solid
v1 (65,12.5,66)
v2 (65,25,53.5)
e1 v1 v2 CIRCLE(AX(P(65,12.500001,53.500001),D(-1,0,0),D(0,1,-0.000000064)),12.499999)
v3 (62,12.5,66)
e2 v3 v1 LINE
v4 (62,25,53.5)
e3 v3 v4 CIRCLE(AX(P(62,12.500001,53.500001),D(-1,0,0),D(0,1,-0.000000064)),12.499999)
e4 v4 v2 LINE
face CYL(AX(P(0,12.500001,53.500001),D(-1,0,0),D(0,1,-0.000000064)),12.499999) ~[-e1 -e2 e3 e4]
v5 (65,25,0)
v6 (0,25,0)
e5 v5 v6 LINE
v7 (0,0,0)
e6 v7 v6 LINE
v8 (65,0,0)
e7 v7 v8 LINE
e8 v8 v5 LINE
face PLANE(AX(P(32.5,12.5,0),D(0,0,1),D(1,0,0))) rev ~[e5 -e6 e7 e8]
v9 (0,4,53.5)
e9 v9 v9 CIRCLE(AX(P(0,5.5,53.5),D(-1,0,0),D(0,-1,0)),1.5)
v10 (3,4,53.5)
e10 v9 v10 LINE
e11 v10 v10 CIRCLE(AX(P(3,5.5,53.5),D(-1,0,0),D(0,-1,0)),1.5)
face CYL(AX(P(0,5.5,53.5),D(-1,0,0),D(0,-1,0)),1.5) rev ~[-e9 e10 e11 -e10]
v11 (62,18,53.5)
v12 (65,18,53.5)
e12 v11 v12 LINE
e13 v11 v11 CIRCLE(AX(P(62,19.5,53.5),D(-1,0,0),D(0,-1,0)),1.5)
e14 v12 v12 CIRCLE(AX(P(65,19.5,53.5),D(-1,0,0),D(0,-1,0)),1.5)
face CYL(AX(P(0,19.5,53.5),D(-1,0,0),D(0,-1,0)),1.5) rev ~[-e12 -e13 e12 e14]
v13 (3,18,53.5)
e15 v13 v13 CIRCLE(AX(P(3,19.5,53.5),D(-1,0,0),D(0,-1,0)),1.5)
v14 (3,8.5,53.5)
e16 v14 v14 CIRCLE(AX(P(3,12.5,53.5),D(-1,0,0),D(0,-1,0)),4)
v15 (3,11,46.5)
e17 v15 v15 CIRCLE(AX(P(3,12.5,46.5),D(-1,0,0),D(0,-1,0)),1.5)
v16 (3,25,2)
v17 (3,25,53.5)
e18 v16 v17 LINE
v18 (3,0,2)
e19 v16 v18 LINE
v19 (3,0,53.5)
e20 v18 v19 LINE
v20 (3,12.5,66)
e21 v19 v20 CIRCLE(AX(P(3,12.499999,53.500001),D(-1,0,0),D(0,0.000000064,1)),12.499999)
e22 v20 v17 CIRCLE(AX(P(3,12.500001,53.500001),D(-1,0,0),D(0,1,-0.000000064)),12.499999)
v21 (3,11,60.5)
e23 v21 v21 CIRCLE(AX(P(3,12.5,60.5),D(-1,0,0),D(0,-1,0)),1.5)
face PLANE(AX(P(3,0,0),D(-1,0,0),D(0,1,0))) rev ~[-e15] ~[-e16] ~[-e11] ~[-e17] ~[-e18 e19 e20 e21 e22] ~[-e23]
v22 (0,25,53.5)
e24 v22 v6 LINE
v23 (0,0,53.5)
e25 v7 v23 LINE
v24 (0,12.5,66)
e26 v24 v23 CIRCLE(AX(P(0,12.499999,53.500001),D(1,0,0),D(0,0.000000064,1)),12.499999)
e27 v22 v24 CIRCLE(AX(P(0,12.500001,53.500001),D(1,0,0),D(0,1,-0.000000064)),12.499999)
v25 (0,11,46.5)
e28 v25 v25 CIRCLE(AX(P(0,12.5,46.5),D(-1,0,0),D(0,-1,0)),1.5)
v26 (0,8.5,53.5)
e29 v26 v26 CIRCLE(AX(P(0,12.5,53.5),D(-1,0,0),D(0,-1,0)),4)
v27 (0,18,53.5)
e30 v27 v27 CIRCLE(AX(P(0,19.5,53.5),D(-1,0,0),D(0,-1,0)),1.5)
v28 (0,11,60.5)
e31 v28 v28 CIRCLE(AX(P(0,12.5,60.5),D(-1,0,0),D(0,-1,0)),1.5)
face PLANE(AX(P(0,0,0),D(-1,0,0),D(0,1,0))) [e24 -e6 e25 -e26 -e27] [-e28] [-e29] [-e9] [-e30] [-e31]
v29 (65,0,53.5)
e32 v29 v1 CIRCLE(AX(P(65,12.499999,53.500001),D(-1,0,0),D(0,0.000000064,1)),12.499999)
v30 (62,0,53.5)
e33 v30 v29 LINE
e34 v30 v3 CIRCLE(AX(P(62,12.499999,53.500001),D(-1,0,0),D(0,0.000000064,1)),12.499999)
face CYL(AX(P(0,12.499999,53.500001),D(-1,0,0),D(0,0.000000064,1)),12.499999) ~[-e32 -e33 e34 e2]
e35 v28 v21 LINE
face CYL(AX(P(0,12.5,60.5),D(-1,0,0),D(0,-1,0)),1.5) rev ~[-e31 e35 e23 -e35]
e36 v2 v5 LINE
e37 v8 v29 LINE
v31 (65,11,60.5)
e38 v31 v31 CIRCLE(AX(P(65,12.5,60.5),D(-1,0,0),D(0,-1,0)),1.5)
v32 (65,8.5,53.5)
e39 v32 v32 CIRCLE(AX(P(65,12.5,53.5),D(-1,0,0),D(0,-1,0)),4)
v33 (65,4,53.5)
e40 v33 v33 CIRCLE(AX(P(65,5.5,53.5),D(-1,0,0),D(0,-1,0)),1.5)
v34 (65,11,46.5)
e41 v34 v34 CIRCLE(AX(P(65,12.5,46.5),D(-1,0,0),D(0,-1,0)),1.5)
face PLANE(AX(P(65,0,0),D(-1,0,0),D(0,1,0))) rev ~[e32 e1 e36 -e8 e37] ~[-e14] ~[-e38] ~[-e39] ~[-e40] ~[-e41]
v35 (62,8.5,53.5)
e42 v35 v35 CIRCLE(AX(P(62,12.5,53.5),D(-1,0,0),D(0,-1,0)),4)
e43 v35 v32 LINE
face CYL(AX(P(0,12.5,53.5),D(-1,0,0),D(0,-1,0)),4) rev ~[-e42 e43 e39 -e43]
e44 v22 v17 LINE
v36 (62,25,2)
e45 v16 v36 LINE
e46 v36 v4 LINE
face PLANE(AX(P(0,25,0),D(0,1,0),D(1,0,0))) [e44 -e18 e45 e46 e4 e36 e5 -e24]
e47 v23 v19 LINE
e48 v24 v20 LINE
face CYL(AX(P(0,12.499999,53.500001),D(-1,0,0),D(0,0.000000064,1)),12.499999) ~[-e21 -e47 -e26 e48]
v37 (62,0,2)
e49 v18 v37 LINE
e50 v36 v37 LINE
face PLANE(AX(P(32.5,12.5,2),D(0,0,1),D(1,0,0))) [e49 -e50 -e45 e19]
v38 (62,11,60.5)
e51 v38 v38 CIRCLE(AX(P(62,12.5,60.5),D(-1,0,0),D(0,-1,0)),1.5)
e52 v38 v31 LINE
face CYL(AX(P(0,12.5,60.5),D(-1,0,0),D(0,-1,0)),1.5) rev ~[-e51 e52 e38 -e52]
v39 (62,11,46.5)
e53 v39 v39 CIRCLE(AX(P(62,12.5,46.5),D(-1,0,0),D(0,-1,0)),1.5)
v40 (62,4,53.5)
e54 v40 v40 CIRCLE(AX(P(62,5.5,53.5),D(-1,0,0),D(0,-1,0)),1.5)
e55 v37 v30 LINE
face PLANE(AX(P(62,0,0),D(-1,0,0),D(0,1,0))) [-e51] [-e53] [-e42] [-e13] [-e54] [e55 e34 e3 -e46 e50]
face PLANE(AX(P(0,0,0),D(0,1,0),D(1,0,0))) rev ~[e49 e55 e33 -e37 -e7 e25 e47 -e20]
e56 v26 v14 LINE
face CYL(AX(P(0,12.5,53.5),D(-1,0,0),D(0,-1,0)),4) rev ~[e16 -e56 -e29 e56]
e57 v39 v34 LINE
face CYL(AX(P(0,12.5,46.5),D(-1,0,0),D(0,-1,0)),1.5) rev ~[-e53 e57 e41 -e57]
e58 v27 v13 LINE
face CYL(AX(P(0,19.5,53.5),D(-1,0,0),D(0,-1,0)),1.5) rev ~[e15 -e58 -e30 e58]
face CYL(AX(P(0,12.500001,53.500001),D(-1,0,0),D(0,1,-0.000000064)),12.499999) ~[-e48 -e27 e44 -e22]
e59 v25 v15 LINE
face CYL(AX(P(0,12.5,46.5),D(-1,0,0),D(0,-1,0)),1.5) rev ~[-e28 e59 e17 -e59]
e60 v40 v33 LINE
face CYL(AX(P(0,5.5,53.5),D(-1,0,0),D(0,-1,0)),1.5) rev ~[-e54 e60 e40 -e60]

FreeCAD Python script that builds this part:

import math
import FreeCAD as App
import Part
import Sketcher
from FreeCAD import Vector
Q = App.Units.Quantity


def add_polygon(sketch, points):
    """Adds a closed chain of lines whose ends are joined by coincident constraints."""
    first, n = sketch.GeometryCount, len(points)
    for a, b in zip(points, points[1:] + points[:1]):
        sketch.addGeometry(Part.LineSegment(App.Vector(*a, 0), App.Vector(*b, 0)), False)
    for i in range(n):
        sketch.addConstraint(Sketcher.Constraint("Coincident", first + i, 2, first + (i + 1) % n, 1))

doc = App.newDocument("Part")
body = doc.addObject("PartDesign::Body", "Body")

# Sketch on XY plane
sketch1 = body.newObject("Sketcher::SketchObject", "Sketch")
sketch1.AttachmentSupport = (doc.getObject("XY_Plane"), [""])
sketch1.MapMode = "FlatFace"
add_polygon(sketch1, [(0, 25), (0, 0), (65, 0), (65, 25)])  # lines 0-3
sketch1.addConstraint([
    Sketcher.Constraint("Vertical", 0),
    Sketcher.Constraint("Horizontal", 1),
    Sketcher.Constraint("Vertical", 2),
    Sketcher.Constraint("Horizontal", 3),
    Sketcher.Constraint("Coincident", 0, 2, -1, 1),
    Sketcher.Constraint("DistanceX", 1, 1, 1, 2, Q("65 mm")),
    Sketcher.Constraint("DistanceY", 0, 2, 0, 1, Q("25 mm")),
])
pad1 = body.newObject("PartDesign::Pad", "Pad")
pad1.Profile = sketch1
pad1.Length = 2

# Sketch on XY plane
sketch2 = body.newObject("Sketcher::SketchObject", "Sketch001")
sketch2.AttachmentSupport = (doc.getObject("XY_Plane"), [""])
sketch2.MapMode = "FlatFace"
add_polygon(sketch2, [(0, 25), (0, 0), (3, 0), (3, 25)])  # lines 0-3
add_polygon(sketch2, [(62, 25), (62, 0), (65, 0), (65, 25)])  # lines 4-7
sketch2.addConstraint([
    Sketcher.Constraint("Vertical", 0),
    Sketcher.Constraint("Horizontal", 1),
    Sketcher.Constraint("Vertical", 2),
    Sketcher.Constraint("Horizontal", 3),
    Sketcher.Constraint("Vertical", 4),
    Sketcher.Constraint("Horizontal", 5),
    Sketcher.Constraint("Vertical", 6),
    Sketcher.Constraint("Horizontal", 7),
    Sketcher.Constraint("Coincident", 0, 2, -1, 1),
    Sketcher.Constraint("PointOnObject", 4, 2, -1),
    Sketcher.Constraint("Horizontal", 3, 2, 6, 2),
    Sketcher.Constraint("Equal", 3, 5),
    Sketcher.Constraint("DistanceX", 1, 1, 1, 2, Q("3 mm")),
    Sketcher.Constraint("DistanceY", 0, 2, 0, 1, Q("25 mm")),
    Sketcher.Constraint("DistanceX", -1, 1, 4, 2, Q("62 mm")),
])
pad2 = body.newObject("PartDesign::Pad", "Pad001")
pad2.Profile = sketch2
pad2.Length = 66

# Sketch on YZ plane
sketch3 = body.newObject("Sketcher::SketchObject", "Sketch002")
sketch3.AttachmentSupport = (doc.getObject("YZ_Plane"), [""])
sketch3.MapMode = "FlatFace"
sketch3.addGeometry([
    Part.ArcOfCircle(Part.Circle(Vector(12.500001, 53.500001, 0), Vector(0, 0, 1), 12.499999), math.radians(-0.000004), math.radians(90.000004)),  # 0
    Part.LineSegment(Vector(12.5, 66, 0), Vector(25, 66, 0)),  # 1
    Part.LineSegment(Vector(25, 66, 0), Vector(25, 53.5, 0)),  # 2
    Part.ArcOfCircle(Part.Circle(Vector(12.499999, 53.500001, 0), Vector(0, 0, 1), 12.499999), math.radians(89.999996), math.radians(180.000004)),  # 3
    Part.LineSegment(Vector(0, 53.5, 0), Vector(0, 66, 0)),  # 4
    Part.LineSegment(Vector(0, 66, 0), Vector(12.5, 66, 0)),  # 5
    Part.Circle(Vector(12.5, 53.5, 0), Vector(0, 0, 1), 4),  # 6
    Part.Circle(Vector(12.5, 60.5, 0), Vector(0, 0, 1), 1.5),  # 7
    Part.Circle(Vector(19.5, 53.5, 0), Vector(0, 0, 1), 1.5),  # 8
    Part.Circle(Vector(12.5, 46.5, 0), Vector(0, 0, 1), 1.5),  # 9
    Part.Circle(Vector(5.5, 53.5, 0), Vector(0, 0, 1), 1.5),  # 10
], False)
sketch3.addConstraint([
    Sketcher.Constraint("Tangent", 0, 2, 1, 1),
    Sketcher.Constraint("Coincident", 1, 2, 2, 1),
    Sketcher.Constraint("Tangent", 2, 2, 0, 1),
    Sketcher.Constraint("Tangent", 3, 2, 4, 1),
    Sketcher.Constraint("Coincident", 4, 2, 5, 1),
    Sketcher.Constraint("Tangent", 5, 2, 3, 1),
    Sketcher.Constraint("Horizontal", 1),
    Sketcher.Constraint("Vertical", 2),
    Sketcher.Constraint("Vertical", 4),
    Sketcher.Constraint("Horizontal", 5),
    Sketcher.Constraint("Coincident", 3, 3, 0, 3),
    Sketcher.Constraint("Coincident", 6, 3, 0, 3),
    Sketcher.Constraint("Equal", 0, 3),
    Sketcher.Constraint("Equal", 7, 8),
    Sketcher.Constraint("Equal", 8, 9),
    Sketcher.Constraint("Equal", 9, 10),
    Sketcher.Constraint("PointOnObject", 3, 2, -2),
    Sketcher.Constraint("Horizontal", 6, 3, 8, 3),
    Sketcher.Constraint("Horizontal", 8, 3, 10, 3),
    Sketcher.Constraint("Vertical", 6, 3, 7, 3),
    Sketcher.Constraint("Vertical", 7, 3, 9, 3),
    Sketcher.Constraint("Diameter", 6, Q("8 mm")),
    Sketcher.Constraint("Diameter", 7, Q("3 mm")),
    Sketcher.Constraint("Radius", 0, Q("12.499999 mm")),
    Sketcher.Constraint("DistanceY", -1, 1, 0, 2, Q("66 mm")),
    Sketcher.Constraint("DistanceY", 0, 3, 7, 3, Q("6.999999 mm")),
    Sketcher.Constraint("DistanceX", 0, 3, 8, 3, Q("6.999999 mm")),
    Sketcher.Constraint("DistanceY", 9, 3, 6, 3, Q("7 mm")),
    Sketcher.Constraint("DistanceX", 10, 3, 3, 3, Q("6.999999 mm")),
])
pocket1 = body.newObject("PartDesign::Pocket", "Pocket")
pocket1.Profile = sketch3
pocket1.Type = "ThroughAll"
pocket1.Reversed = True

doc.recompute()
